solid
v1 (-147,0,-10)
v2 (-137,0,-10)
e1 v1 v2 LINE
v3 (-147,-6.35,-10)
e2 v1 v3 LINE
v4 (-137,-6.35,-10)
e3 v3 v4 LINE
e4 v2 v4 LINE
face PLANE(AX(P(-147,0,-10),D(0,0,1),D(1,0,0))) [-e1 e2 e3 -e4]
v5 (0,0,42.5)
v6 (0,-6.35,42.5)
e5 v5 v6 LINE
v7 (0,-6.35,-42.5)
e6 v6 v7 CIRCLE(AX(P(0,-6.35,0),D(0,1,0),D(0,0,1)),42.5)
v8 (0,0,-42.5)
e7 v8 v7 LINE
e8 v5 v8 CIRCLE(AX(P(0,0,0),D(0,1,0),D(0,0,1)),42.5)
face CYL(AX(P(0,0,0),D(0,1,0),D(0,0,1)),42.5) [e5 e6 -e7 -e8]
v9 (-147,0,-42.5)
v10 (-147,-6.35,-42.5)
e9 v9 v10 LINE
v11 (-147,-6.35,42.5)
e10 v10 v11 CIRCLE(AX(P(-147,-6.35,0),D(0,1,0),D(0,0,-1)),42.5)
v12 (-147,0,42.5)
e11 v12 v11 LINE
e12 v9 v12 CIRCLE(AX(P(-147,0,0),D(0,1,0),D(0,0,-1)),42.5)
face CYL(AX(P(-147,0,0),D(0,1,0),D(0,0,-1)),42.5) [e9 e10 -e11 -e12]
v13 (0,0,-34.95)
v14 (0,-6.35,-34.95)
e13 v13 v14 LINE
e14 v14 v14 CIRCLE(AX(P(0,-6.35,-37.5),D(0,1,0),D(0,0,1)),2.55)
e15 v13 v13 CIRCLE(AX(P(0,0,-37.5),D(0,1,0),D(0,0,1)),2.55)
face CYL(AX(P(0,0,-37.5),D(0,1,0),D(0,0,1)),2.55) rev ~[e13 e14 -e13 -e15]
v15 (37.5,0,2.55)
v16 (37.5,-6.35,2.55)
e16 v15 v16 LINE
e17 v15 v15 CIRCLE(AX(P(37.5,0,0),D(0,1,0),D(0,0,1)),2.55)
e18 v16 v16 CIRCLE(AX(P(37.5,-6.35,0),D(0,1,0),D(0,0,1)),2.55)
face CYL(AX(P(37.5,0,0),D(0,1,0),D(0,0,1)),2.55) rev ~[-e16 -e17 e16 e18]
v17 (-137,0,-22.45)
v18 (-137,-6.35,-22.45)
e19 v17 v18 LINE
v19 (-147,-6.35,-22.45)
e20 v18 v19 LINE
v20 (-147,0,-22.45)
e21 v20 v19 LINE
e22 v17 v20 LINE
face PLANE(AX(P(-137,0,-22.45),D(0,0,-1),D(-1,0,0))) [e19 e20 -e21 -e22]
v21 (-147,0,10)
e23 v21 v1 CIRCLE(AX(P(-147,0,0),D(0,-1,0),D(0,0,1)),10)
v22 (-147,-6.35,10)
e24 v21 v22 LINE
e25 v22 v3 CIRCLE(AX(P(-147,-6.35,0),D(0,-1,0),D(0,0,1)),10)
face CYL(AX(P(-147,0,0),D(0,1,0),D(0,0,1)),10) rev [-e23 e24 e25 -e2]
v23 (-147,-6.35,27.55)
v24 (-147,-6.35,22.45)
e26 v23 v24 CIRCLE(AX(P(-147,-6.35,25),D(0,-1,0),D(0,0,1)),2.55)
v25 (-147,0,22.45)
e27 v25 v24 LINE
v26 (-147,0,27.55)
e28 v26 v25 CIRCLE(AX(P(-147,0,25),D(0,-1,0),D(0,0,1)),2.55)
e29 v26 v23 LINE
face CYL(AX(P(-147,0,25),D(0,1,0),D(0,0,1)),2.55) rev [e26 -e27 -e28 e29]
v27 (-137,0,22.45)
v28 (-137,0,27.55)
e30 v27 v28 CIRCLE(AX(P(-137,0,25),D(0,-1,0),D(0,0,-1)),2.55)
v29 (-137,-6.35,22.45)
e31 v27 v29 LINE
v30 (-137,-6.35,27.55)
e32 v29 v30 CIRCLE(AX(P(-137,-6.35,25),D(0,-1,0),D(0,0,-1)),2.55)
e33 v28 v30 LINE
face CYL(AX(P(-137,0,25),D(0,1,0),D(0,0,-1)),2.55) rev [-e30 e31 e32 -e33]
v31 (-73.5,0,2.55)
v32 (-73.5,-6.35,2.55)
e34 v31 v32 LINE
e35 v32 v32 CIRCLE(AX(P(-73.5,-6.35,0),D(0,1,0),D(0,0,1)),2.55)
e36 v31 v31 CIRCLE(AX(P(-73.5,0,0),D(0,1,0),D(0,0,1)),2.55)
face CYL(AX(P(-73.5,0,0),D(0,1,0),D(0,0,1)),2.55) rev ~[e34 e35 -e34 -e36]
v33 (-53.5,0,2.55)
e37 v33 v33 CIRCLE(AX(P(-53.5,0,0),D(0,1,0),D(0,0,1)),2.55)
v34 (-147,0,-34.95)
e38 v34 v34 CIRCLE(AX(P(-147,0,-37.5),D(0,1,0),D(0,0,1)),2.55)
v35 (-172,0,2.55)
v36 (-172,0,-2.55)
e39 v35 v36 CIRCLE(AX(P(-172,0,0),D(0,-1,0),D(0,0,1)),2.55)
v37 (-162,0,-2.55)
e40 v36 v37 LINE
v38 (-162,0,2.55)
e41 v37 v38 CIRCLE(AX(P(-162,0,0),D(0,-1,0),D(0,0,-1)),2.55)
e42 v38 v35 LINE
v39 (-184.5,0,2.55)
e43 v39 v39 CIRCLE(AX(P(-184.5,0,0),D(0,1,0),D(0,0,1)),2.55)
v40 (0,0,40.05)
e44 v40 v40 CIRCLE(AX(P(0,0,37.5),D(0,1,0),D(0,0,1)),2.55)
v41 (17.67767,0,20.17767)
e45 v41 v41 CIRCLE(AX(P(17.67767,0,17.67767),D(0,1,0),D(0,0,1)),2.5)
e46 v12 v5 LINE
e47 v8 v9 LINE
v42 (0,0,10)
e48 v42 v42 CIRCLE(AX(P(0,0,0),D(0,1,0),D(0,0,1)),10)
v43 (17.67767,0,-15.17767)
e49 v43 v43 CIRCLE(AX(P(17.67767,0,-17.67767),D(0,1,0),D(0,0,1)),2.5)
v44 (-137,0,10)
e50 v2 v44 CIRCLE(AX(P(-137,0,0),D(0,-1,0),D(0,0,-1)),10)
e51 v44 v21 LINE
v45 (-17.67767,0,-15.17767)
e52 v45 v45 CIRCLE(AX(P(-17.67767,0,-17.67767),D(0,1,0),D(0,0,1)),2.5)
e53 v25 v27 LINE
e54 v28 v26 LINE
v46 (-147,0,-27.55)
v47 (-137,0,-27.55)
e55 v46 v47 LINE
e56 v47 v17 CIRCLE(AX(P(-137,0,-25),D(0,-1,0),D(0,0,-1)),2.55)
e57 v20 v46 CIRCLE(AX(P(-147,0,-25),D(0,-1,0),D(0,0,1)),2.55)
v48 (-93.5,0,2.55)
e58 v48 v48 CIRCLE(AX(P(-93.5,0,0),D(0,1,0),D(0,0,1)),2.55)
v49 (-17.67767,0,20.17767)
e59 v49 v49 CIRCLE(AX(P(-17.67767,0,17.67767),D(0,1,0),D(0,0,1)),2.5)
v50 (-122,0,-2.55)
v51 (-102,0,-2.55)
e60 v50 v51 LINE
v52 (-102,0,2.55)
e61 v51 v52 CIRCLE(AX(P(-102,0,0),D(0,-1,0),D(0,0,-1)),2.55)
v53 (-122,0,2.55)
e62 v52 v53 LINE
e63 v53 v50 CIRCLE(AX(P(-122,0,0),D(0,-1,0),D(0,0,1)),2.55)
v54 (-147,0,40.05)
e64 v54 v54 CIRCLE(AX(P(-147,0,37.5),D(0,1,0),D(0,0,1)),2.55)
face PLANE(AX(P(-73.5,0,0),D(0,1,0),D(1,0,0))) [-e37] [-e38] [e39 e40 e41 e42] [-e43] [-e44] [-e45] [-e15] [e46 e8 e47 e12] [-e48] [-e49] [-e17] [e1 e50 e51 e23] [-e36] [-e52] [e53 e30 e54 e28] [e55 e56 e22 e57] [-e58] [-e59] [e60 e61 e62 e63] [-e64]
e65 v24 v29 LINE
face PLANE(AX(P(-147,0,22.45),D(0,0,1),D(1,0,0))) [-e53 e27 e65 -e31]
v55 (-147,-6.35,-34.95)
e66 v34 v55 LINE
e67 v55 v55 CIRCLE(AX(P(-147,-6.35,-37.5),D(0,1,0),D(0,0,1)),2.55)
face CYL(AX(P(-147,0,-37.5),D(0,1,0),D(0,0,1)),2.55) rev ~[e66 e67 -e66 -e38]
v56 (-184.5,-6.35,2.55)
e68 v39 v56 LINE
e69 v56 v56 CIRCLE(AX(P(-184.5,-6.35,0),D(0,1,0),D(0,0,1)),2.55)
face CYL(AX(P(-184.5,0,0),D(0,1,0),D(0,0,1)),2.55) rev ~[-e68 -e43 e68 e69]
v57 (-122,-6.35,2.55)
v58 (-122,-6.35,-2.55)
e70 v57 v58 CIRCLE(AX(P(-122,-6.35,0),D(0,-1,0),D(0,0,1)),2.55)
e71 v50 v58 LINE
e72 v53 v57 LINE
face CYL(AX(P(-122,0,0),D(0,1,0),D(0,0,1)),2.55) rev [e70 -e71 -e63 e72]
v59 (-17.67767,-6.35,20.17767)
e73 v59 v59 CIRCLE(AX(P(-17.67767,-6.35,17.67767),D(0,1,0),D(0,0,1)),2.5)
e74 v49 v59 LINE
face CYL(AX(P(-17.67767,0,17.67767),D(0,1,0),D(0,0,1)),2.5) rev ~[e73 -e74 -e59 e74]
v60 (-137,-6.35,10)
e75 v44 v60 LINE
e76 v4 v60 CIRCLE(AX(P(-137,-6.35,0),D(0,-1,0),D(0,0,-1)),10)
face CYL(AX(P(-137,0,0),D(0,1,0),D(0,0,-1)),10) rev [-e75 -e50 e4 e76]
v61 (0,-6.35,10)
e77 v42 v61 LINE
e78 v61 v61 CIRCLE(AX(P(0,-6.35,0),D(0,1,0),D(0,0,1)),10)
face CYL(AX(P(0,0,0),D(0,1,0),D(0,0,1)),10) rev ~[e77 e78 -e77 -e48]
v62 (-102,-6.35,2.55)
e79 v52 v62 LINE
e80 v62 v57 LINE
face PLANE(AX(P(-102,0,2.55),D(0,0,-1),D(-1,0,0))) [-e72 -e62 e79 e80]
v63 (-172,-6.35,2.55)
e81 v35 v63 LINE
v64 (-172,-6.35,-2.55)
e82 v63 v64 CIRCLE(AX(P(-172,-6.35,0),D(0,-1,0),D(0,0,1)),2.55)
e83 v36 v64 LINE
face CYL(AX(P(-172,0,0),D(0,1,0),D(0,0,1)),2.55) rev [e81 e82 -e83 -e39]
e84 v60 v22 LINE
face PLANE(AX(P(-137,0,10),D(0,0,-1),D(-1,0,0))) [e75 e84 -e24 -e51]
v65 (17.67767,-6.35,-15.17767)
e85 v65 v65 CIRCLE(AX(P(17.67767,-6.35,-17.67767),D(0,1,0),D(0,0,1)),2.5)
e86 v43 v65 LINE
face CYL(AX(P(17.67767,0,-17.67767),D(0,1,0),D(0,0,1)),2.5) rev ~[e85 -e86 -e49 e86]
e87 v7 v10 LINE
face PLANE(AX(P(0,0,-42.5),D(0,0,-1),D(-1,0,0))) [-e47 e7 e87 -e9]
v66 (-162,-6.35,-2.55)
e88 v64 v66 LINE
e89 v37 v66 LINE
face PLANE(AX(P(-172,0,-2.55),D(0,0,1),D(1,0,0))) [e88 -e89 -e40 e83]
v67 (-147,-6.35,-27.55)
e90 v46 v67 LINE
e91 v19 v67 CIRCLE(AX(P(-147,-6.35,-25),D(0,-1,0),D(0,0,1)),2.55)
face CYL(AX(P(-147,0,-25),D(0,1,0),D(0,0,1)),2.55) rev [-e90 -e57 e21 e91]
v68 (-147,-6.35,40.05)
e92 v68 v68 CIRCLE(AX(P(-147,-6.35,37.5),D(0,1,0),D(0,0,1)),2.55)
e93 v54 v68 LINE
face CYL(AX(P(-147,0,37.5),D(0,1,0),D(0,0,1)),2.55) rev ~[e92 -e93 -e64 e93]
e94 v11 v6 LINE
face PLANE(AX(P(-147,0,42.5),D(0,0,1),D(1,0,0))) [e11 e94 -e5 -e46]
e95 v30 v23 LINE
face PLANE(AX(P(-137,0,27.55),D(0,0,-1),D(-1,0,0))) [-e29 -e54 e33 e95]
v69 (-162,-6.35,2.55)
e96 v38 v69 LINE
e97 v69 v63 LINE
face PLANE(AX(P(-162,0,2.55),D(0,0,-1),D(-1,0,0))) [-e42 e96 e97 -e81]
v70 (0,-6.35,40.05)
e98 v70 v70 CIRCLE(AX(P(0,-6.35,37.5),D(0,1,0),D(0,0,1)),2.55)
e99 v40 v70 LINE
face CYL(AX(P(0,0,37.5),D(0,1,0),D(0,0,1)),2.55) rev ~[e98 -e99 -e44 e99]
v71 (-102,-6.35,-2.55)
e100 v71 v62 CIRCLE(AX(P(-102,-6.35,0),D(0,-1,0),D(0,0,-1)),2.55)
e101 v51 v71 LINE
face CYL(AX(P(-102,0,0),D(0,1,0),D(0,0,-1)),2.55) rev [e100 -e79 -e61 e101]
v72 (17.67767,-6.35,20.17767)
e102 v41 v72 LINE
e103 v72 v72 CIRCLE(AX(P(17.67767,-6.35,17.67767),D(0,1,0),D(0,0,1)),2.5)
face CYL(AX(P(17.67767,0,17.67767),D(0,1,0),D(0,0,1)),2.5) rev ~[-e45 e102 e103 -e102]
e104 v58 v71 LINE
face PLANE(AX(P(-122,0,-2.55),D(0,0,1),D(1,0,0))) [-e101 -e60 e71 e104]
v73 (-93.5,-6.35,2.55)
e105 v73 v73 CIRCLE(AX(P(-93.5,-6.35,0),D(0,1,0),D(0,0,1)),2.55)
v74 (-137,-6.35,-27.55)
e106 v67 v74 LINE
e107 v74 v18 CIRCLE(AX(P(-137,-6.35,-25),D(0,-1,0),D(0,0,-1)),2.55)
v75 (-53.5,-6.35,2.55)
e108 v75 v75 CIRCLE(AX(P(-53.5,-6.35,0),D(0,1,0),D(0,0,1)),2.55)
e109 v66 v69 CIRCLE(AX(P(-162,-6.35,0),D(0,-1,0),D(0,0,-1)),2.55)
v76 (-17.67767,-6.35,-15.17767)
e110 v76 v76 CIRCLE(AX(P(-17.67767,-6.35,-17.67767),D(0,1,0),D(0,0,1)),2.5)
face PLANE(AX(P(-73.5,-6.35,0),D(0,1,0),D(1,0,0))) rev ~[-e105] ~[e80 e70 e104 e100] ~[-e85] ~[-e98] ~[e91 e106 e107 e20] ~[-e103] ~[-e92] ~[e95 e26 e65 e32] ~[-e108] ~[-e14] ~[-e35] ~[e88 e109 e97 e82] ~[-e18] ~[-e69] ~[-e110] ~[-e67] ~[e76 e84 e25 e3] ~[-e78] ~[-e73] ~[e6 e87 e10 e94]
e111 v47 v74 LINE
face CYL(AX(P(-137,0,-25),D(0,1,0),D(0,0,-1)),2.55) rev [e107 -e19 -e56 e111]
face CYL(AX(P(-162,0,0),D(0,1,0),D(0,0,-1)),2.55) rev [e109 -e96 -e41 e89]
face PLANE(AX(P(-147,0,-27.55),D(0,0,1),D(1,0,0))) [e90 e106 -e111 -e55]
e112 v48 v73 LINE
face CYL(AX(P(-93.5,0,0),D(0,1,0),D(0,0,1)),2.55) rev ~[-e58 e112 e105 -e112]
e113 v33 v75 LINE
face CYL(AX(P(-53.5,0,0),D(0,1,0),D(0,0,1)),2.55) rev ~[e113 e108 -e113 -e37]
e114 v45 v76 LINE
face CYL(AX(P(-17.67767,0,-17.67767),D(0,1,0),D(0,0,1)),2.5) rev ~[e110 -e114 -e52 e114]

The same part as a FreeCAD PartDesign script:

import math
import FreeCAD as App
import Part
import Sketcher

doc = App.newDocument("Part")
body = doc.addObject("PartDesign::Body", "Body")

# Sketch on XZ plane
sketch1 = doc.addObject("Sketcher::SketchObject", "Sketch")
body.addObject(sketch1)
sketch1.AttachmentSupport = (doc.XZ_Plane, [""])
sketch1.MapMode = "FlatFace"
sketch1.addGeometry([
    Part.ArcOfCircle(Part.Circle(App.Vector(-147, 0, 0), App.Vector(0, 0, 1), 42.5), math.radians(90), math.radians(270)),  # 0
    Part.LineSegment(App.Vector(-147, 42.5, 0), App.Vector(0, 42.5, 0)),  # 1
    Part.ArcOfCircle(Part.Circle(App.Vector(0, 0, 0), App.Vector(0, 0, 1), 42.5), math.radians(-90), math.radians(90)),  # 2
    Part.LineSegment(App.Vector(0, -42.5, 0), App.Vector(-147, -42.5, 0)),  # 3
    Part.Circle(App.Vector(-147, 37.5, 0), App.Vector(0, 0, 1), 2.5),  # 4
    Part.LineSegment(App.Vector(-137, 27.6, 0), App.Vector(-147, 27.6, 0)),  # 5
    Part.ArcOfCircle(Part.Circle(App.Vector(-147, 25, 0), App.Vector(0, 0, 1), 2.5), math.radians(90), math.radians(270)),  # 6
    Part.LineSegment(App.Vector(-147, 22.4, 0), App.Vector(-137, 22.4, 0)),  # 7
    Part.ArcOfCircle(Part.Circle(App.Vector(-137, 25, 0), App.Vector(0, 0, 1), 2.5), math.radians(-90), math.radians(90)),  # 8
    Part.Circle(App.Vector(0, 37.5, 0), App.Vector(0, 0, 1), 2.5),  # 9
    Part.Circle(App.Vector(-17.7, 17.7, 0), App.Vector(0, 0, 1), 2.5),  # 10
    Part.Circle(App.Vector(17.7, 17.7, 0), App.Vector(0, 0, 1), 2.5),  # 11
    Part.Circle(App.Vector(-184.5, 0, 0), App.Vector(0, 0, 1), 2.5),  # 12
    Part.LineSegment(App.Vector(-162, 2.5, 0), App.Vector(-172, 2.5, 0)),  # 13
    Part.ArcOfCircle(Part.Circle(App.Vector(-172, 0, 0), App.Vector(0, 0, 1), 2.5), math.radians(90), math.radians(270)),  # 14
    Part.LineSegment(App.Vector(-172, -2.5, 0), App.Vector(-162, -2.5, 0)),  # 15
    Part.ArcOfCircle(Part.Circle(App.Vector(-162, 0, 0), App.Vector(0, 0, 1), 2.5), math.radians(-90), math.radians(90)),  # 16
    Part.LineSegment(App.Vector(-137, 10, 0), App.Vector(-147, 10, 0)),  # 17
    Part.ArcOfCircle(Part.Circle(App.Vector(-147, 0, 0), App.Vector(0, 0, 1), 10), math.radians(90), math.radians(270)),  # 18
    Part.LineSegment(App.Vector(-147, -10, 0), App.Vector(-137, -10, 0)),  # 19
    Part.ArcOfCircle(Part.Circle(App.Vector(-137, 0, 0), App.Vector(0, 0, 1), 10), math.radians(-90), math.radians(90)),  # 20
    Part.ArcOfCircle(Part.Circle(App.Vector(-122, 0, 0), App.Vector(0, 0, 1), 2.5), math.radians(90), math.radians(270)),  # 21
    Part.LineSegment(App.Vector(-122, -2.5, 0), App.Vector(-102, -2.5, 0)),  # 22
    Part.ArcOfCircle(Part.Circle(App.Vector(-102, 0, 0), App.Vector(0, 0, 1), 2.5), math.radians(-90), math.radians(90)),  # 23
    Part.LineSegment(App.Vector(-102, 2.5, 0), App.Vector(-122, 2.5, 0)),  # 24
    Part.Circle(App.Vector(-93.5, 0, 0), App.Vector(0, 0, 1), 2.5),  # 25
    Part.LineSegment(App.Vector(-137, -22.4, 0), App.Vector(-147, -22.4, 0)),  # 26
    Part.ArcOfCircle(Part.Circle(App.Vector(-147, -25, 0), App.Vector(0, 0, 1), 2.5), math.radians(90), math.radians(270)),  # 27
    Part.LineSegment(App.Vector(-147, -27.6, 0), App.Vector(-137, -27.6, 0)),  # 28
    Part.ArcOfCircle(Part.Circle(App.Vector(-137, -25, 0), App.Vector(0, 0, 1), 2.5), math.radians(-90), math.radians(90)),  # 29
    Part.Circle(App.Vector(-147, -37.5, 0), App.Vector(0, 0, 1), 2.5),  # 30
    Part.Circle(App.Vector(-73.5, 0, 0), App.Vector(0, 0, 1), 2.5),  # 31
    Part.Circle(App.Vector(-53.5, 0, 0), App.Vector(0, 0, 1), 2.5),  # 32
    Part.Circle(App.Vector(-17.7, -17.7, 0), App.Vector(0, 0, 1), 2.5),  # 33
    Part.Circle(App.Vector(0, 0, 0), App.Vector(0, 0, 1), 10),  # 34
    Part.Circle(App.Vector(37.5, 0, 0), App.Vector(0, 0, 1), 2.5),  # 35
    Part.Circle(App.Vector(17.7, -17.7, 0), App.Vector(0, 0, 1), 2.5),  # 36
    Part.Circle(App.Vector(0, -37.5, 0), App.Vector(0, 0, 1), 2.5),  # 37
], False)
sketch1.addConstraint([
    Sketcher.Constraint("Tangent", 0, 1, 1, 1),
    Sketcher.Constraint("Tangent", 1, 2, 2, 2),
    Sketcher.Constraint("Tangent", 2, 1, 3, 1),
    Sketcher.Constraint("Tangent", 3, 2, 0, 2),
    Sketcher.Constraint("Tangent", 5, 2, 6, 1),
    Sketcher.Constraint("Tangent", 6, 2, 7, 1),
    Sketcher.Constraint("Tangent", 7, 2, 8, 1),
    Sketcher.Constraint("Tangent", 8, 2, 5, 1),
    Sketcher.Constraint("Tangent", 13, 2, 14, 1),
    Sketcher.Constraint("Tangent", 14, 2, 15, 1),
    Sketcher.Constraint("Tangent", 15, 2, 16, 1),
    Sketcher.Constraint("Tangent", 16, 2, 13, 1),
    Sketcher.Constraint("Tangent", 17, 2, 18, 1),
    Sketcher.Constraint("Tangent", 18, 2, 19, 1),
    Sketcher.Constraint("Tangent", 19, 2, 20, 1),
    Sketcher.Constraint("Tangent", 20, 2, 17, 1),
    Sketcher.Constraint("Tangent", 21, 2, 22, 1),
    Sketcher.Constraint("Tangent", 22, 2, 23, 1),
    Sketcher.Constraint("Tangent", 23, 2, 24, 1),
    Sketcher.Constraint("Tangent", 24, 2, 21, 1),
    Sketcher.Constraint("Tangent", 26, 2, 27, 1),
    Sketcher.Constraint("Tangent", 27, 2, 28, 1),
    Sketcher.Constraint("Tangent", 28, 2, 29, 1),
    Sketcher.Constraint("Tangent", 29, 2, 26, 1),
    Sketcher.Constraint("Horizontal", 1),
    Sketcher.Constraint("Horizontal", 3),
    Sketcher.Constraint("Horizontal", 5),
    Sketcher.Constraint("Horizontal", 7),
    Sketcher.Constraint("Horizontal", 13),
    Sketcher.Constraint("Horizontal", 15),
    Sketcher.Constraint("Horizontal", 17),
    Sketcher.Constraint("Horizontal", 19),
    Sketcher.Constraint("Horizontal", 22),
    Sketcher.Constraint("Horizontal", 24),
    Sketcher.Constraint("Horizontal", 26),
    Sketcher.Constraint("Horizontal", 28),
    Sketcher.Constraint("Coincident", 2, 3, -1, 1),
    Sketcher.Constraint("Coincident", 34, 3, -1, 1),
    Sketcher.Constraint("Coincident", 18, 3, 0, 3),
    Sketcher.Constraint("Equal", 4, 6),
    Sketcher.Constraint("Equal", 8, 9),
    Sketcher.Constraint("Equal", 10, 11),
    Sketcher.Constraint("Equal", 9, 12),
    Sketcher.Constraint("Equal", 12, 14),
    Sketcher.Constraint("Equal", 16, 21),
    Sketcher.Constraint("Equal", 23, 25),
    Sketcher.Constraint("Equal", 25, 27),
    Sketcher.Constraint("Equal", 29, 30),
    Sketcher.Constraint("Equal", 30, 31),
    Sketcher.Constraint("Equal", 31, 32),
    Sketcher.Constraint("Equal", 11, 33),
    Sketcher.Constraint("Equal", 20, 34),
    Sketcher.Constraint("Equal", 32, 35),
    Sketcher.Constraint("Equal", 33, 36),
    Sketcher.Constraint("Equal", 35, 37),
    Sketcher.Constraint("Symmetric", 11, 3, 33, 3, -1, 1),
    Sketcher.Constraint("Symmetric", 10, 3, 36, 3, -1, 1),
    Sketcher.Constraint("Symmetric", 9, 3, 37, 3, -1, 1),
    Sketcher.Constraint("Symmetric", 10, 3, 11, 3, -2),
    Sketcher.Constraint("Symmetric", 6, 3, 27, 3, -1),
    Sketcher.Constraint("Symmetric", 4, 3, 30, 3, -1),
    Sketcher.Constraint("PointOnObject", 9, 3, -2),
    Sketcher.Constraint("PointOnObject", 12, 3, -1),
    Sketcher.Constraint("PointOnObject", 14, 3, -1),
    Sketcher.Constraint("PointOnObject", 21, 3, -1),
    Sketcher.Constraint("PointOnObject", 25, 3, -1),
    Sketcher.Constraint("PointOnObject", 31, 3, -1),
    Sketcher.Constraint("PointOnObject", 32, 3, -1),
    Sketcher.Constraint("PointOnObject", 35, 3, -1),
    Sketcher.Constraint("Horizontal", 4, 3, 9, 3),
    Sketcher.Constraint("Vertical", 0, 3, 4, 3),
    Sketcher.Constraint("Vertical", 4, 3, 6, 3),
    Sketcher.Constraint("Vertical", 8, 3, 20, 3),
    Sketcher.Constraint("Vertical", 20, 3, 29, 3),
    Sketcher.Constraint("Equal", 7, 13),
    Sketcher.Constraint("Diameter", 10, 5.0),
    Sketcher.Constraint("Diameter", 34, 20.0),
    Sketcher.Constraint("Diameter", 4, 5.1),
    Sketcher.Constraint("Radius", 0, 42.5),
    Sketcher.Constraint("DistanceX", 1, 1, 1, 2, 147.0),
    Sketcher.Constraint("DistanceX", 5, 2, 5, 1, 10.0),
    Sketcher.Constraint("DistanceX", 22, 1, 22, 2, 20.0),
    Sketcher.Constraint("DistanceY", -1, 1, 6, 3, 25.0),
    Sketcher.Constraint("DistanceX", 14, 3, -1, 1, 172.0),
    Sketcher.Constraint("DistanceX", 21, 3, -1, 1, 122.0),
    Sketcher.Constraint("DistanceX", 25, 3, 31, 3, 20.0),
    Sketcher.Constraint("DistanceX", 31, 3, 32, 3, 20.0),
    Sketcher.Constraint("DistanceY", 4, 3, 0, 1, 5.0),
    Sketcher.Constraint("DistanceX", 12, 3, -1, 1, 184.5),
    Sketcher.Constraint("DistanceX", 25, 3, -1, 1, 93.5),
    Sketcher.Constraint("DistanceX", -1, 1, 35, 3, 37.5),
    Sketcher.Constraint("DistanceX", 10, 3, -1, 1, 17.67767),
    Sketcher.Constraint("DistanceY", -1, 1, 10, 3, 17.67767),
])
pad1 = doc.addObject("PartDesign::Pad", "Pad")
body.addObject(pad1)
pad1.Profile = sketch1
pad1.Length = 6.35

doc.recompute()
